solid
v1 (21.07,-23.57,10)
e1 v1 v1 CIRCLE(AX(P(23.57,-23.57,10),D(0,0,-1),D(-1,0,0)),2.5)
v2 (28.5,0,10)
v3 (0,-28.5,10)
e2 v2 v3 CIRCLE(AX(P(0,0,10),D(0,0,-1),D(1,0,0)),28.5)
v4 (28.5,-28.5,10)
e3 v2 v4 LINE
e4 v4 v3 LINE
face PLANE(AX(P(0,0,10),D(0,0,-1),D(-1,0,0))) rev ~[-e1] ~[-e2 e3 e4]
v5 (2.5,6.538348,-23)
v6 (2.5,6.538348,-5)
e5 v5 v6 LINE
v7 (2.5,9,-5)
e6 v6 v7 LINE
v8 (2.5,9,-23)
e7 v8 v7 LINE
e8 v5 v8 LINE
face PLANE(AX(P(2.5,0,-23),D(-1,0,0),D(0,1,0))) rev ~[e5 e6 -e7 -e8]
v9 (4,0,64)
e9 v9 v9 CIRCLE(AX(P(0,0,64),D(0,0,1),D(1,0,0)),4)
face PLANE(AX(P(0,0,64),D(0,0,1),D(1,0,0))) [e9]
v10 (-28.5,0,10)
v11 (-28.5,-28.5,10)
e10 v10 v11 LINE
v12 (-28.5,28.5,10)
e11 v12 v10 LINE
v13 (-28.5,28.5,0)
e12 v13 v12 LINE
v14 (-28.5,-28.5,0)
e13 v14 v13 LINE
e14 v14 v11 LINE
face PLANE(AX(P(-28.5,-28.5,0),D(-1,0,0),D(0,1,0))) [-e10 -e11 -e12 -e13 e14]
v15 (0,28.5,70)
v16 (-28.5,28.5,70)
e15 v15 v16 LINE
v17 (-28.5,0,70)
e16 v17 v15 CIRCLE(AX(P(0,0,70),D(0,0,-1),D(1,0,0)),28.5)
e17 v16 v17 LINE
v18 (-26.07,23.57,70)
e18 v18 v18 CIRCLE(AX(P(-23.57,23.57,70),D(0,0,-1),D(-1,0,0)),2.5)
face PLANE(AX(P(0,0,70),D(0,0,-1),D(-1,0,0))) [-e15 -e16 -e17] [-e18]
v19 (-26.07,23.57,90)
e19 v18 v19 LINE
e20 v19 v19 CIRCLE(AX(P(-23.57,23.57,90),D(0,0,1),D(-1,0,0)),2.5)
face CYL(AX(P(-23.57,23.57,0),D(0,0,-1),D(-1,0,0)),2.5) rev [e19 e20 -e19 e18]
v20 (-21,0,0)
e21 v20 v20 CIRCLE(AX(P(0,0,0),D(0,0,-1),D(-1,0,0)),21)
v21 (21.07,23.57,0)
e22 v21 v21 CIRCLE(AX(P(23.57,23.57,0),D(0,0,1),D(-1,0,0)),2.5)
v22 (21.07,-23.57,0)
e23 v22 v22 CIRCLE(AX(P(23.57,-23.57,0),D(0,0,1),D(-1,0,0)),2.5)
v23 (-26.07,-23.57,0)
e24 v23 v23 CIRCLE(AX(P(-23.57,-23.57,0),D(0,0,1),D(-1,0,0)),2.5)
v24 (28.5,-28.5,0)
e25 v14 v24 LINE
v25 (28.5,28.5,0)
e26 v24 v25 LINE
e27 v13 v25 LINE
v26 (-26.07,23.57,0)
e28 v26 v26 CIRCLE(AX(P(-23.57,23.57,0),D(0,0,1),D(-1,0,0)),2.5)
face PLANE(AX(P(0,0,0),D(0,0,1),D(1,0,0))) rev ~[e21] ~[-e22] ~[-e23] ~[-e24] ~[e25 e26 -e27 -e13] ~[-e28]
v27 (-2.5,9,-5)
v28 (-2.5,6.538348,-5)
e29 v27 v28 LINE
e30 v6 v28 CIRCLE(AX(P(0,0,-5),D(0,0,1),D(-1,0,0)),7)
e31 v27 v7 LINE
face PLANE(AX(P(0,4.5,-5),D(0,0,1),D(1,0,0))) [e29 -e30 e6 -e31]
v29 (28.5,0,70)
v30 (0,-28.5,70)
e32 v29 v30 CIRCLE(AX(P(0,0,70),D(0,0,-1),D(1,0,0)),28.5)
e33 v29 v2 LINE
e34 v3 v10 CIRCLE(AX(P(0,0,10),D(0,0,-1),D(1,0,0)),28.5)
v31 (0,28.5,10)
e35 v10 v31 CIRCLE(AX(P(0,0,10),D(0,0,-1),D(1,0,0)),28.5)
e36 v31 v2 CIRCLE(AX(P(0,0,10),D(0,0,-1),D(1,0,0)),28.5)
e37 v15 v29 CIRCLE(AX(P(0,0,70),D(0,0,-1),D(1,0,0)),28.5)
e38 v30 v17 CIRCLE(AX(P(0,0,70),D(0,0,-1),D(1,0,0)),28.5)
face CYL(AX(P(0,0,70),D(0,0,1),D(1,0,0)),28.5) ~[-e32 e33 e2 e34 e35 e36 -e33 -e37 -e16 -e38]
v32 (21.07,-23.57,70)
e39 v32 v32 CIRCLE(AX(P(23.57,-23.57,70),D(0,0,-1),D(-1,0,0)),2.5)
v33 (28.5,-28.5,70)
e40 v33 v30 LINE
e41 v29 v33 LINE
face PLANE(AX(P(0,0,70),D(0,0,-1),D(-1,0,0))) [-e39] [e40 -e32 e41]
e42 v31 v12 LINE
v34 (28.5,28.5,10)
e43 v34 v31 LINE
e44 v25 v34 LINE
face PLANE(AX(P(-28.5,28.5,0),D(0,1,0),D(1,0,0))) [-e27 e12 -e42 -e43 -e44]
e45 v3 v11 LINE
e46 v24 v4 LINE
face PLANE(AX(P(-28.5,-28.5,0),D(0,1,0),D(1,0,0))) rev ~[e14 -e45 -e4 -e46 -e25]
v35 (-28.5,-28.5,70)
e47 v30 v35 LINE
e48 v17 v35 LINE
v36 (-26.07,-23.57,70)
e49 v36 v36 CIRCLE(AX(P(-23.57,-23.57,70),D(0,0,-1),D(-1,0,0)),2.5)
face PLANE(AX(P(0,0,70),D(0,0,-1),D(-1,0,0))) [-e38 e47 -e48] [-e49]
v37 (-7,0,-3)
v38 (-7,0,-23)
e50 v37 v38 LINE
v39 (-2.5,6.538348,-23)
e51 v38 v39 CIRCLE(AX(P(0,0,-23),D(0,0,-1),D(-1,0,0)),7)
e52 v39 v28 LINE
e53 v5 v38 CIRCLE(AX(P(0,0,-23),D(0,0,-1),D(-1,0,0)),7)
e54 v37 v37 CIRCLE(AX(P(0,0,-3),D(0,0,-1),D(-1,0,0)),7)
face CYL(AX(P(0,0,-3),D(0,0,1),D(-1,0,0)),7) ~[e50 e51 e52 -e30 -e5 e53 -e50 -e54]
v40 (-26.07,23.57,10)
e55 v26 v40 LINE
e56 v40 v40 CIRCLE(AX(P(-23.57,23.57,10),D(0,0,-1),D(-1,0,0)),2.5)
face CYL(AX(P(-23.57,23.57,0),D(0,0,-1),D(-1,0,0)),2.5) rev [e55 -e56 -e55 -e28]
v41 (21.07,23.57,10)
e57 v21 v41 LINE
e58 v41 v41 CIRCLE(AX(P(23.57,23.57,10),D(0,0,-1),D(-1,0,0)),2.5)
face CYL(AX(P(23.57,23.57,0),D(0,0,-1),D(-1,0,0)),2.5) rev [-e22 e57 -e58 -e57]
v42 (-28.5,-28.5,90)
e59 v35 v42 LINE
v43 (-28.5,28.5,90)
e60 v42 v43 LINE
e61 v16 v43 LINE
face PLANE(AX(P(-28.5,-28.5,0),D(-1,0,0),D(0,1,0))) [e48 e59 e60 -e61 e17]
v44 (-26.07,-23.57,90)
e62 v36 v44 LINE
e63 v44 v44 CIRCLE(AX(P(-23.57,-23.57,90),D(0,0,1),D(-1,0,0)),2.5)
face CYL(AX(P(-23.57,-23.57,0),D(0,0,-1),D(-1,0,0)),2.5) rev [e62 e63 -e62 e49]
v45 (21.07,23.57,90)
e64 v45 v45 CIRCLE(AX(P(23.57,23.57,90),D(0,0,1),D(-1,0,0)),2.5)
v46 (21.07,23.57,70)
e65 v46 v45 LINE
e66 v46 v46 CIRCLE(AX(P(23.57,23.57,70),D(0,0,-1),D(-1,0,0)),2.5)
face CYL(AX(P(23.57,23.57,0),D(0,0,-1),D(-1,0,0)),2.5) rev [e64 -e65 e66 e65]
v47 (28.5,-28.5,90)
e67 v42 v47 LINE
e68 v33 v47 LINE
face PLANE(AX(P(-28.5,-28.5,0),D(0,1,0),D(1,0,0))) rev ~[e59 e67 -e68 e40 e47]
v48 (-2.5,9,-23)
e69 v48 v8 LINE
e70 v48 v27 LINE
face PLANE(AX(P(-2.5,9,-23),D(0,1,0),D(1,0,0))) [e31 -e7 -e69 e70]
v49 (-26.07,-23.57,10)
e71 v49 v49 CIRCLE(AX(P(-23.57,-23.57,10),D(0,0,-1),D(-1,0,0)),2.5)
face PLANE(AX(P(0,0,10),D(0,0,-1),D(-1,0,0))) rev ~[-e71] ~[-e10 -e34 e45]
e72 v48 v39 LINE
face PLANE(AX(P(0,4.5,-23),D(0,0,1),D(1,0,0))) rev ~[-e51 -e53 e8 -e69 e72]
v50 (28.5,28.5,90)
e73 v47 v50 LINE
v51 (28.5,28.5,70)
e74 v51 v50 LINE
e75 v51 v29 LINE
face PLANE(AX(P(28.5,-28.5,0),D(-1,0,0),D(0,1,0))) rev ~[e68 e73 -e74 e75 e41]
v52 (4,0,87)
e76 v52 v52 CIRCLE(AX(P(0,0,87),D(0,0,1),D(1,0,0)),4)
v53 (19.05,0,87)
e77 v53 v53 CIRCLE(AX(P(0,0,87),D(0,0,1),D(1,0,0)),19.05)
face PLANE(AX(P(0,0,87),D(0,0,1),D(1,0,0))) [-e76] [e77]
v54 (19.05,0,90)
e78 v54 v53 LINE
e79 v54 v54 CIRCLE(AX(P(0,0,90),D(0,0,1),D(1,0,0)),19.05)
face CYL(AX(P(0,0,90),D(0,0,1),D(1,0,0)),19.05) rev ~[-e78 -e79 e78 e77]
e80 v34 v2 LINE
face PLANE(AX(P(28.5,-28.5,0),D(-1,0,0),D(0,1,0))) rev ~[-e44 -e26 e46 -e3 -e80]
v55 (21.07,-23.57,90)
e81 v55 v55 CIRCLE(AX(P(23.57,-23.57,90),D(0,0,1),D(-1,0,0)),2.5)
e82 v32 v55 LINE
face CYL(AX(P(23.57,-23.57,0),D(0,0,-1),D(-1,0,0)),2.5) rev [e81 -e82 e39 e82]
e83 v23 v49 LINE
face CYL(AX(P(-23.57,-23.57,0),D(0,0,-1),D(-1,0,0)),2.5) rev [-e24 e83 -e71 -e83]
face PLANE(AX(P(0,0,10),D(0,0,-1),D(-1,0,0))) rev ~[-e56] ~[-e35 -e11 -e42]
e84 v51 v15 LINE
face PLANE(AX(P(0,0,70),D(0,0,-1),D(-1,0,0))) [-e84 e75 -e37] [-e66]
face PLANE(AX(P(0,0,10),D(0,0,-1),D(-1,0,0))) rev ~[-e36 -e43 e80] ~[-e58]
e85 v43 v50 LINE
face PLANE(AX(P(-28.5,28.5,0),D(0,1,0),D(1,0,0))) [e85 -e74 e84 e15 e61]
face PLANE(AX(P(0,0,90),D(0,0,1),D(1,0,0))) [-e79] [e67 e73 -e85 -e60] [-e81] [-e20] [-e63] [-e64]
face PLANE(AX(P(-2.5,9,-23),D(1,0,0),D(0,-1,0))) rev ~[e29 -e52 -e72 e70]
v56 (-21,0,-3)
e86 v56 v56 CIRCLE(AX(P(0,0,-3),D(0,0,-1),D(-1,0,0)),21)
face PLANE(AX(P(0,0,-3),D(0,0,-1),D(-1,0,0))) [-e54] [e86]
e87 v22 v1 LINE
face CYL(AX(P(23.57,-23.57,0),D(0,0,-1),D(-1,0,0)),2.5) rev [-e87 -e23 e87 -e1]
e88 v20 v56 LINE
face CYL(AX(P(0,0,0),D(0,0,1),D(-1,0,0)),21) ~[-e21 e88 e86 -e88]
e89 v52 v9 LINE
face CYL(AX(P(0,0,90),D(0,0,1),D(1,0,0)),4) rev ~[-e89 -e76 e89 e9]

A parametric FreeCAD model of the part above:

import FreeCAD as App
import Part
import Sketcher

V = App.Vector
Q = App.Units.Quantity


def add_polygon(sketch, points):
    """Adds a closed chain of lines whose ends are joined by coincident constraints."""
    first, n = sketch.GeometryCount, len(points)
    for a, b in zip(points, points[1:] + points[:1]):
        sketch.addGeometry(Part.LineSegment(App.Vector(*a, 0), App.Vector(*b, 0)), False)
    for i in range(n):
        sketch.addConstraint(Sketcher.Constraint("Coincident", first + i, 2, first + (i + 1) % n, 1))

doc = App.newDocument("Part")
params = doc.addObject("Spreadsheet::Sheet", "Params")
for row, (alias, value) in enumerate([
    ("sketch1_diameter", "5 mm"),
    ("sketch1_width", "57 mm"),
    ("pad1_length", "90 mm"),
    ("sketch2_diameter", "57 mm"),
    ("pocket1_length", "35 mm"),
    ("pocket1_length2", "25 mm"),
    ("sketch3_diameter", "42 mm"),
    ("pad2_length", "3 mm"),
    ("sketch4_diameter", "14 mm"),
    ("pad3_length", "20 mm"),
    ("sketch5_diameter", "8 mm"),
    ("pocket2_length", "26 mm"),
    ("sketch6_diameter", "38.1 mm"),
    ("pocket3_length", "3 mm"),
    ("sketch7_width", "5 mm"),
    ("sketch7_height", "9 mm"),
    ("pad4_length", "18 mm"),
], start=1):
    params.set(f"A{row}", alias)
    params.set(f"B{row}", "=" + value)
    params.setAlias(f"B{row}", alias)

body = doc.addObject("PartDesign::Body", "Body")

# Sketch on XY plane
sketch1 = body.newObject("Sketcher::SketchObject", "Sketch")
sketch1.AttachmentSupport = (doc.getObject("XY_Plane"), [""])
sketch1.MapMode = "FlatFace"
add_polygon(sketch1, [(-28.5, 28.5), (-28.5, -28.5), (28.5, -28.5), (28.5, 28.5)])  # lines 0-3
sketch1.addGeometry(Part.Circle(V(-23.6, -23.6, 0), V(0, 0, 1), 2.5), False)  # 4
sketch1.addGeometry(Part.Circle(V(23.6, -23.6, 0), V(0, 0, 1), 2.5), False)  # 5
sketch1.addGeometry(Part.Circle(V(-23.6, 23.6, 0), V(0, 0, 1), 2.5), False)  # 6
sketch1.addGeometry(Part.Circle(V(23.6, 23.6, 0), V(0, 0, 1), 2.5), False)  # 7
sketch1.addConstraint(Sketcher.Constraint("Vertical", 0))
sketch1.addConstraint(Sketcher.Constraint("Horizontal", 1))
sketch1.addConstraint(Sketcher.Constraint("Vertical", 2))
sketch1.addConstraint(Sketcher.Constraint("Horizontal", 3))
sketch1.addConstraint(Sketcher.Constraint("Equal", 4, 5))
sketch1.addConstraint(Sketcher.Constraint("Equal", 5, 6))
sketch1.addConstraint(Sketcher.Constraint("Equal", 6, 7))
sketch1.addConstraint(Sketcher.Constraint("Symmetric", 5, 3, 6, 3, -1, 1))
sketch1.addConstraint(Sketcher.Constraint("Symmetric", 4, 3, 7, 3, -1, 1))
sketch1.addConstraint(Sketcher.Constraint("Symmetric", 0, 2, 2, 2, -1, 1))
sketch1.addConstraint(Sketcher.Constraint("Symmetric", 4, 3, 5, 3, -2))
sketch1.addConstraint(Sketcher.Constraint("Equal", 3, 0))
sketch1.addConstraint(Sketcher.Constraint("Diameter", 4, Q("5 mm")))
sketch1.addConstraint(Sketcher.Constraint("DistanceX", 1, 1, 1, 2, Q("57 mm")))
sketch1.addConstraint(Sketcher.Constraint("DistanceX", 4, 3, -1, 1, Q("23.57 mm")))
sketch1.addConstraint(Sketcher.Constraint("DistanceY", 4, 3, -1, 1, Q("23.57 mm")))
sketch1.setExpression("Constraints[16]", "Params.sketch1_diameter")
sketch1.setExpression("Constraints[17]", "Params.sketch1_width")
pad1 = body.newObject("PartDesign::Pad", "Pad")
pad1.Profile = sketch1
pad1.setExpression("Length", "Params.pad1_length")

# Sketch on XY plane
sketch2 = body.newObject("Sketcher::SketchObject", "Sketch001")
sketch2.AttachmentSupport = (doc.getObject("XY_Plane"), [""])
sketch2.MapMode = "FlatFace"
sketch2.AttachmentOffset = App.Placement(V(0, 0, 45), App.Rotation())
add_polygon(sketch2, [(54, 56), (54, -56), (-54, -56), (-54, 56)])  # lines 0-3
sketch2.addGeometry(Part.Circle(V(0, 0, 0), V(0, 0, 1), 28), False)  # 4
sketch2.addConstraint(Sketcher.Constraint("Vertical", 0))
sketch2.addConstraint(Sketcher.Constraint("Horizontal", 1))
sketch2.addConstraint(Sketcher.Constraint("Vertical", 2))
sketch2.addConstraint(Sketcher.Constraint("Horizontal", 3))
sketch2.addConstraint(Sketcher.Constraint("Coincident", 4, 3, -1, 1))
sketch2.addConstraint(Sketcher.Constraint("Symmetric", 0, 2, 2, 2, -1, 1))
sketch2.addConstraint(Sketcher.Constraint("Diameter", 4, Q("57 mm")))
sketch2.addConstraint(Sketcher.Constraint("DistanceX", 1, 2, 1, 1, Q("108.428047 mm")))
sketch2.addConstraint(Sketcher.Constraint("DistanceY", 0, 2, 0, 1, Q("112.732754 mm")))
sketch2.setExpression("Constraints[10]", "Params.sketch2_diameter")
pocket1 = body.newObject("PartDesign::Pocket", "Pocket")
pocket1.Profile = sketch2
pocket1.Type = "TwoLengths"
pocket1.setExpression("Length", "Params.pocket1_length")
pocket1.setExpression("Length2", "Params.pocket1_length2")

# Sketch on XY plane
sketch3 = body.newObject("Sketcher::SketchObject", "Sketch002")
sketch3.AttachmentSupport = (doc.getObject("XY_Plane"), [""])
sketch3.MapMode = "FlatFace"
sketch3.addGeometry(Part.Circle(V(0, 0, 0), V(0, 0, 1), 21), False)
sketch3.addConstraint(Sketcher.Constraint("Coincident", 0, 3, -1, 1))
sketch3.addConstraint(Sketcher.Constraint("Diameter", 0, Q("42 mm")))
sketch3.setExpression("Constraints[1]", "Params.sketch3_diameter")
pad2 = body.newObject("PartDesign::Pad", "Pad001")
pad2.Profile = sketch3
pad2.setExpression("Length", "Params.pad2_length")
pad2.Reversed = True

# Sketch on XY plane
sketch4 = body.newObject("Sketcher::SketchObject", "Sketch003")
sketch4.AttachmentSupport = (doc.getObject("XY_Plane"), [""])
sketch4.MapMode = "FlatFace"
sketch4.AttachmentOffset = App.Placement(V(0, 0, -3), App.Rotation())
sketch4.addGeometry(Part.Circle(V(0, 0, 0), V(0, 0, 1), 7), False)
sketch4.addConstraint(Sketcher.Constraint("Coincident", 0, 3, -1, 1))
sketch4.addConstraint(Sketcher.Constraint("Diameter", 0, Q("14 mm")))
sketch4.setExpression("Constraints[1]", "Params.sketch4_diameter")
pad3 = body.newObject("PartDesign::Pad", "Pad002")
pad3.Profile = sketch4
pad3.setExpression("Length", "Params.pad3_length")
pad3.Reversed = True

# Sketch on XY plane
sketch5 = body.newObject("Sketcher::SketchObject", "Sketch004")
sketch5.AttachmentSupport = (doc.getObject("XY_Plane"), [""])
sketch5.MapMode = "FlatFace"
sketch5.AttachmentOffset = App.Placement(V(0, 0, 90), App.Rotation())
sketch5.addGeometry(Part.Circle(V(0, 0, 0), V(0, 0, 1), 4), False)
sketch5.addConstraint(Sketcher.Constraint("Coincident", 0, 3, -1, 1))
sketch5.addConstraint(Sketcher.Constraint("Diameter", 0, Q("8 mm")))
sketch5.setExpression("Constraints[1]", "Params.sketch5_diameter")
pocket2 = body.newObject("PartDesign::Pocket", "Pocket001")
pocket2.Profile = sketch5
pocket2.setExpression("Length", "Params.pocket2_length")

# Sketch on XY plane
sketch6 = body.newObject("Sketcher::SketchObject", "Sketch005")
sketch6.AttachmentSupport = (doc.getObject("XY_Plane"), [""])
sketch6.MapMode = "FlatFace"
sketch6.AttachmentOffset = App.Placement(V(0, 0, 90), App.Rotation())
sketch6.addGeometry(Part.Circle(V(0, 0, 0), V(0, 0, 1), 19), False)
sketch6.addConstraint(Sketcher.Constraint("Coincident", 0, 3, -1, 1))
sketch6.addConstraint(Sketcher.Constraint("Diameter", 0, Q("38.1 mm")))
sketch6.setExpression("Constraints[1]", "Params.sketch6_diameter")
pocket3 = body.newObject("PartDesign::Pocket", "Pocket002")
pocket3.Profile = sketch6
pocket3.setExpression("Length", "Params.pocket3_length")

# Sketch on XY plane
sketch7 = body.newObject("Sketcher::SketchObject", "Sketch006")
sketch7.AttachmentSupport = (doc.getObject("XY_Plane"), [""])
sketch7.MapMode = "FlatFace"
sketch7.AttachmentOffset = App.Placement(V(0, 0, -23), App.Rotation())
add_polygon(sketch7, [(-2, 9), (2, 9), (2, 0), (-2, 0)])  # lines 0-3
sketch7.addConstraint(Sketcher.Constraint("Horizontal", 0))
sketch7.addConstraint(Sketcher.Constraint("Vertical", 1))
sketch7.addConstraint(Sketcher.Constraint("Horizontal", 2))
sketch7.addConstraint(Sketcher.Constraint("Vertical", 3))
sketch7.addConstraint(Sketcher.Constraint("Symmetric", 1, 2, 2, 2, -1, 1))
sketch7.addConstraint(Sketcher.Constraint("DistanceX", 0, 1, 0, 2, Q("5 mm")))
sketch7.addConstraint(Sketcher.Constraint("DistanceY", 1, 2, 1, 1, Q("9 mm")))
sketch7.setExpression("Constraints[9]", "Params.sketch7_width")
sketch7.setExpression("Constraints[10]", "Params.sketch7_height")
pad4 = body.newObject("PartDesign::Pad", "Pad003")
pad4.Profile = sketch7
pad4.setExpression("Length", "Params.pad4_length")

doc.recompute()
